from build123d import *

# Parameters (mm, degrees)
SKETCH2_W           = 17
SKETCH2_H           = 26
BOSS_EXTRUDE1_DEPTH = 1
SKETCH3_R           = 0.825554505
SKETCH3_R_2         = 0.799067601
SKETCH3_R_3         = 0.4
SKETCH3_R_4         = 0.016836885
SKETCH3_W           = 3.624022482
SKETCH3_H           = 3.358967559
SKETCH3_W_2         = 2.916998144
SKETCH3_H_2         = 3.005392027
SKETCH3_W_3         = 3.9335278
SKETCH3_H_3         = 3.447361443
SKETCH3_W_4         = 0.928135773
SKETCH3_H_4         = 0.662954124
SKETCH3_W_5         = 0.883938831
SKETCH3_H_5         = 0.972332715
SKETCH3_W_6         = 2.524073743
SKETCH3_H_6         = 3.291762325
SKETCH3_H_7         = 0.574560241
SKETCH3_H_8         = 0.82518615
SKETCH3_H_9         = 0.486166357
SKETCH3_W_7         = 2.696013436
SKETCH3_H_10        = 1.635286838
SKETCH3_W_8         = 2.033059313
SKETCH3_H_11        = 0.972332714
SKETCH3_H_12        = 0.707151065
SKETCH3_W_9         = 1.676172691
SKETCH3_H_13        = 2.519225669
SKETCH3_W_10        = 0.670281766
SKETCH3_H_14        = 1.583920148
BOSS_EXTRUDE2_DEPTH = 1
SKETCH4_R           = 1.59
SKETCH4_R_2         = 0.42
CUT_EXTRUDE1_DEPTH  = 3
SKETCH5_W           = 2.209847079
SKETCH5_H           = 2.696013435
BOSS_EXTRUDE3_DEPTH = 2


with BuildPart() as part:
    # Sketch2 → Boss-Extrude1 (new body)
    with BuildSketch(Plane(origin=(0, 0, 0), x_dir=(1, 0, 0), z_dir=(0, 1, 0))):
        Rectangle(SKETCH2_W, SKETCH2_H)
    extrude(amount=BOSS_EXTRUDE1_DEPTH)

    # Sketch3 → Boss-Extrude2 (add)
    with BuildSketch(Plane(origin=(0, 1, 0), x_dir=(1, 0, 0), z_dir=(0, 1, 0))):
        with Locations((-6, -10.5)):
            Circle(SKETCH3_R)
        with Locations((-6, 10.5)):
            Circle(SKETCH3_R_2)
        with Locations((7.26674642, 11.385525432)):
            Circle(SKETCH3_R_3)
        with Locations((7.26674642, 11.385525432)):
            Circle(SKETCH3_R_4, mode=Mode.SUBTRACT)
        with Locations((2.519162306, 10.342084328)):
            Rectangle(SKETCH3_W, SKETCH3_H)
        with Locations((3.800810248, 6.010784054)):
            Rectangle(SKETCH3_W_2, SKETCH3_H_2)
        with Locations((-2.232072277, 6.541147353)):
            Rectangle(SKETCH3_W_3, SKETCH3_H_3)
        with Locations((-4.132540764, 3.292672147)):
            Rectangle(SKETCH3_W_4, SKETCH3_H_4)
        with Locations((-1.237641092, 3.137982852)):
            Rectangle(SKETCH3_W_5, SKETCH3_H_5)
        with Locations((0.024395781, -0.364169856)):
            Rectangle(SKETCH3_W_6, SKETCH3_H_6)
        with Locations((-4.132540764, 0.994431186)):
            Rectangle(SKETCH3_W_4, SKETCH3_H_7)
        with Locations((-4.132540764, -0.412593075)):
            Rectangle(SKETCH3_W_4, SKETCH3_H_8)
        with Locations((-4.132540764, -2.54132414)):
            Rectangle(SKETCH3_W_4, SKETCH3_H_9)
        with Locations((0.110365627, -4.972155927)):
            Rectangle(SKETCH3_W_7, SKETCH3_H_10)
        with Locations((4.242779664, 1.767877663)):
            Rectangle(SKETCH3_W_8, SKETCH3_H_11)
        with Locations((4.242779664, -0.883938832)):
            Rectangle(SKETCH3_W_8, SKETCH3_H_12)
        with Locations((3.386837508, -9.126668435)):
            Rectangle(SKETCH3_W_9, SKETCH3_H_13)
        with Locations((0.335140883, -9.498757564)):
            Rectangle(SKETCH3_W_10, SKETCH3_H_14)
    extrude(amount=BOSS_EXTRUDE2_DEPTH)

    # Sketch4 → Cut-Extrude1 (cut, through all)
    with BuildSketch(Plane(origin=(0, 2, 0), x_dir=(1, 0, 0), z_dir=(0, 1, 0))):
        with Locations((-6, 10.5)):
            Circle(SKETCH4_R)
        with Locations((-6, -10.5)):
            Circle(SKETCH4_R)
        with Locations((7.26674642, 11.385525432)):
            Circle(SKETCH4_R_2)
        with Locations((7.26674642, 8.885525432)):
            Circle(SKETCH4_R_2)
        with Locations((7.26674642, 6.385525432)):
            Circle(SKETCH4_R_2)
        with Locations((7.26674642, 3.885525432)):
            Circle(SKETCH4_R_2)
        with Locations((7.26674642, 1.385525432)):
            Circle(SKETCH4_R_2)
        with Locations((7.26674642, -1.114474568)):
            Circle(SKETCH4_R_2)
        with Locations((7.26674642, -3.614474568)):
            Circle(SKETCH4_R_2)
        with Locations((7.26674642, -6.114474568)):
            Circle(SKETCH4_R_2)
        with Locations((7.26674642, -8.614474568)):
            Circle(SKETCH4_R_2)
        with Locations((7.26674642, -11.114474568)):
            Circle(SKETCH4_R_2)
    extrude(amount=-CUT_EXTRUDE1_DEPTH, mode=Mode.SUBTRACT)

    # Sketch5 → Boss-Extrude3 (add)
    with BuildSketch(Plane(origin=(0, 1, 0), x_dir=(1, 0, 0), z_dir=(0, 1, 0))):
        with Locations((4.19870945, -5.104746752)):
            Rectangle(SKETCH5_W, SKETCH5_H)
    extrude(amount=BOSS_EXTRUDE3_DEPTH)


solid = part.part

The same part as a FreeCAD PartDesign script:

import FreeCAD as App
import Part
import Sketcher
Q = App.Units.Quantity

doc = App.newDocument("Part")
body = doc.addObject("PartDesign::Body", "Body")

sketch1 = body.newObject("Sketcher::SketchObject", "Sketch")
sketch1.AttachmentSupport = (doc.getObject("XZ_Plane"), [""])
sketch1.MapMode = "FlatFace"
sketch1.addGeometry([
    Part.LineSegment(App.Vector(-8.5, -13, 0), App.Vector(-8.5, 13, 0)),
    Part.LineSegment(App.Vector(-8.5, 13, 0), App.Vector(8.5, 13, 0)),
    Part.LineSegment(App.Vector(8.5, 13, 0), App.Vector(8.5, -13, 0)),
    Part.LineSegment(App.Vector(8.5, -13, 0), App.Vector(-8.5, -13, 0)),
], False)
sketch1.addConstraint([
    Sketcher.Constraint("Coincident", 0, 2, 1, 1),
    Sketcher.Constraint("Coincident", 1, 2, 2, 1),
    Sketcher.Constraint("Coincident", 2, 2, 3, 1),
    Sketcher.Constraint("Coincident", 3, 2, 0, 1),
    Sketcher.Constraint("Vertical", 0),
    Sketcher.Constraint("Horizontal", 1),
    Sketcher.Constraint("Vertical", 2),
    Sketcher.Constraint("Horizontal", 3),
    Sketcher.Constraint("Symmetric", 0, 2, 2, 2, -1, 1),
    Sketcher.Constraint("DistanceX", 1, 1, 1, 2, Q("17 mm")),
    Sketcher.Constraint("DistanceY", 0, 1, 0, 2, Q("26 mm")),
])
pad1 = body.newObject("PartDesign::Pad", "Pad")
pad1.Profile = sketch1
pad1.Length = 1
pad1.Reversed = True

sketch2 = body.newObject("Sketcher::SketchObject", "Sketch001")
sketch2.AttachmentSupport = (doc.getObject("XZ_Plane"), [""])
sketch2.MapMode = "FlatFace"
sketch2.AttachmentOffset = App.Placement(App.Vector(0, 0, -1), App.Rotation())
sketch2.addGeometry([
    Part.Circle(App.Vector(-6, 10.5, 0), App.Vector(0, 0, 1), 0.825555),
    Part.Circle(App.Vector(-6, -10.5, 0), App.Vector(0, 0, 1), 0.799068),
    Part.Circle(App.Vector(7.266746, -11.385525, 0), App.Vector(0, 0, 1), 0.4),
    Part.Circle(App.Vector(7.266746, -11.385525, 0), App.Vector(0, 0, 1), 0.016837),
    Part.LineSegment(App.Vector(0.707151, -12.021568, 0), App.Vector(0.707151, -8.662601, 0)),
    Part.LineSegment(App.Vector(0.707151, -8.662601, 0), App.Vector(4.331174, -8.662601, 0)),
    Part.LineSegment(App.Vector(4.331174, -8.662601, 0), App.Vector(4.331174, -12.021568, 0)),
    Part.LineSegment(App.Vector(4.331174, -12.021568, 0), App.Vector(0.707151, -12.021568, 0)),
    Part.LineSegment(App.Vector(2.342311, -7.51348, 0), App.Vector(2.342311, -4.508088, 0)),
    Part.LineSegment(App.Vector(2.342311, -4.508088, 0), App.Vector(5.259309, -4.508088, 0)),
    Part.LineSegment(App.Vector(5.259309, -4.508088, 0), App.Vector(5.259309, -7.51348, 0)),
    Part.LineSegment(App.Vector(5.259309, -7.51348, 0), App.Vector(2.342311, -7.51348, 0)),
    Part.LineSegment(App.Vector(-4.198836, -8.264828, 0), App.Vector(-4.198836, -4.817467, 0)),
    Part.LineSegment(App.Vector(-4.198836, -4.817467, 0), App.Vector(-0.265308, -4.817467, 0)),
    Part.LineSegment(App.Vector(-0.265308, -4.817467, 0), App.Vector(-0.265308, -8.264828, 0)),
    Part.LineSegment(App.Vector(-0.265308, -8.264828, 0), App.Vector(-4.198836, -8.264828, 0)),
    Part.LineSegment(App.Vector(-4.596609, -3.624149, 0), App.Vector(-4.596609, -2.961195, 0)),
    Part.LineSegment(App.Vector(-4.596609, -2.961195, 0), App.Vector(-3.668473, -2.961195, 0)),
    Part.LineSegment(App.Vector(-3.668473, -2.961195, 0), App.Vector(-3.668473, -3.624149, 0)),
    Part.LineSegment(App.Vector(-3.668473, -3.624149, 0), App.Vector(-4.596609, -3.624149, 0)),
    Part.LineSegment(App.Vector(-1.679611, -3.624149, 0), App.Vector(-1.679611, -2.651816, 0)),
    Part.LineSegment(App.Vector(-1.679611, -2.651816, 0), App.Vector(-0.795672, -2.651816, 0)),
    Part.LineSegment(App.Vector(-0.795672, -2.651816, 0), App.Vector(-0.795672, -3.624149, 0)),
    Part.LineSegment(App.Vector(-0.795672, -3.624149, 0), App.Vector(-1.679611, -3.624149, 0)),
    Part.LineSegment(App.Vector(-1.237641, -1.281711, 0), App.Vector(-1.237641, 2.010051, 0)),
    Part.LineSegment(App.Vector(-1.237641, 2.010051, 0), App.Vector(1.286433, 2.010051, 0)),
    Part.LineSegment(App.Vector(1.286433, 2.010051, 0), App.Vector(1.286433, -1.281711, 0)),
    Part.LineSegment(App.Vector(1.286433, -1.281711, 0), App.Vector(-1.237641, -1.281711, 0)),
    Part.LineSegment(App.Vector(-4.596609, -1.281711, 0), App.Vector(-4.596609, -0.707151, 0)),
    Part.LineSegment(App.Vector(-4.596609, -0.707151, 0), App.Vector(-3.668473, -0.707151, 0)),
    Part.LineSegment(App.Vector(-3.668473, -0.707151, 0), App.Vector(-3.668473, -1.281711, 0)),
    Part.LineSegment(App.Vector(-3.668473, -1.281711, 0), App.Vector(-4.596609, -1.281711, 0)),
    Part.LineSegment(App.Vector(-4.596609, 0, 0), App.Vector(-4.596609, 0.825186, 0)),
    Part.LineSegment(App.Vector(-4.596609, 0.825186, 0), App.Vector(-3.668473, 0.825186, 0)),
    Part.LineSegment(App.Vector(-3.668473, 0.825186, 0), App.Vector(-3.668473, 0, 0)),
    Part.LineSegment(App.Vector(-3.668473, 0, 0), App.Vector(-4.596609, 0, 0)),
    Part.LineSegment(App.Vector(-4.596609, 2.298241, 0), App.Vector(-4.596609, 2.784407, 0)),
    Part.LineSegment(App.Vector(-4.596609, 2.784407, 0), App.Vector(-3.668473, 2.784407, 0)),
    Part.LineSegment(App.Vector(-3.668473, 2.784407, 0), App.Vector(-3.668473, 2.298241, 0)),
    Part.LineSegment(App.Vector(-3.668473, 2.298241, 0), App.Vector(-4.596609, 2.298241, 0)),
    Part.LineSegment(App.Vector(-1.237641, 4.154513, 0), App.Vector(-1.237641, 5.789799, 0)),
    Part.LineSegment(App.Vector(-1.237641, 5.789799, 0), App.Vector(1.458372, 5.789799, 0)),
    Part.LineSegment(App.Vector(1.458372, 5.789799, 0), App.Vector(1.458372, 4.154513, 0)),
    Part.LineSegment(App.Vector(1.458372, 4.154513, 0), App.Vector(-1.237641, 4.154513, 0)),
    Part.LineSegment(App.Vector(3.22625, -2.254044, 0), App.Vector(3.22625, -1.281711, 0)),
    Part.LineSegment(App.Vector(3.22625, -1.281711, 0), App.Vector(5.259309, -1.281711, 0)),
    Part.LineSegment(App.Vector(5.259309, -1.281711, 0), App.Vector(5.259309, -2.254044, 0)),
    Part.LineSegment(App.Vector(5.259309, -2.254044, 0), App.Vector(3.22625, -2.254044, 0)),
    Part.LineSegment(App.Vector(3.22625, 0.530363, 0), App.Vector(3.22625, 1.237514, 0)),
    Part.LineSegment(App.Vector(3.22625, 1.237514, 0), App.Vector(5.259309, 1.237514, 0)),
    Part.LineSegment(App.Vector(5.259309, 1.237514, 0), App.Vector(5.259309, 0.530363, 0)),
    Part.LineSegment(App.Vector(5.259309, 0.530363, 0), App.Vector(3.22625, 0.530363, 0)),
    Part.LineSegment(App.Vector(2.548751, 7.867056, 0), App.Vector(2.548751, 10.386281, 0)),
    Part.LineSegment(App.Vector(2.548751, 10.386281, 0), App.Vector(4.224924, 10.386281, 0)),
    Part.LineSegment(App.Vector(4.224924, 10.386281, 0), App.Vector(4.224924, 7.867056, 0)),
    Part.LineSegment(App.Vector(4.224924, 7.867056, 0), App.Vector(2.548751, 7.867056, 0)),
    Part.LineSegment(App.Vector(0, 8.706797, 0), App.Vector(0, 10.290718, 0)),
    Part.LineSegment(App.Vector(0, 10.290718, 0), App.Vector(0.670282, 10.290718, 0)),
    Part.LineSegment(App.Vector(0.670282, 10.290718, 0), App.Vector(0.670282, 8.706797, 0)),
    Part.LineSegment(App.Vector(0.670282, 8.706797, 0), App.Vector(0, 8.706797, 0)),
], False)
sketch2.addConstraint([
    Sketcher.Constraint("Coincident", 4, 2, 5, 1),
    Sketcher.Constraint("Coincident", 5, 2, 6, 1),
    Sketcher.Constraint("Coincident", 6, 2, 7, 1),
    Sketcher.Constraint("Coincident", 7, 2, 4, 1),
    Sketcher.Constraint("Coincident", 8, 2, 9, 1),
    Sketcher.Constraint("Coincident", 9, 2, 10, 1),
    Sketcher.Constraint("Coincident", 10, 2, 11, 1),
    Sketcher.Constraint("Coincident", 11, 2, 8, 1),
    Sketcher.Constraint("Coincident", 12, 2, 13, 1),
    Sketcher.Constraint("Coincident", 13, 2, 14, 1),
    Sketcher.Constraint("Coincident", 14, 2, 15, 1),
    Sketcher.Constraint("Coincident", 15, 2, 12, 1),
    Sketcher.Constraint("Coincident", 16, 2, 17, 1),
    Sketcher.Constraint("Coincident", 17, 2, 18, 1),
    Sketcher.Constraint("Coincident", 18, 2, 19, 1),
    Sketcher.Constraint("Coincident", 19, 2, 16, 1),
    Sketcher.Constraint("Coincident", 20, 2, 21, 1),
    Sketcher.Constraint("Coincident", 21, 2, 22, 1),
    Sketcher.Constraint("Coincident", 22, 2, 23, 1),
    Sketcher.Constraint("Coincident", 23, 2, 20, 1),
    Sketcher.Constraint("Coincident", 24, 2, 25, 1),
    Sketcher.Constraint("Coincident", 25, 2, 26, 1),
    Sketcher.Constraint("Coincident", 26, 2, 27, 1),
    Sketcher.Constraint("Coincident", 27, 2, 24, 1),
    Sketcher.Constraint("Coincident", 28, 2, 29, 1),
    Sketcher.Constraint("Coincident", 29, 2, 30, 1),
    Sketcher.Constraint("Coincident", 30, 2, 31, 1),
    Sketcher.Constraint("Coincident", 31, 2, 28, 1),
    Sketcher.Constraint("Coincident", 32, 2, 33, 1),
    Sketcher.Constraint("Coincident", 33, 2, 34, 1),
    Sketcher.Constraint("Coincident", 34, 2, 35, 1),
    Sketcher.Constraint("Coincident", 35, 2, 32, 1),
    Sketcher.Constraint("Coincident", 36, 2, 37, 1),
    Sketcher.Constraint("Coincident", 37, 2, 38, 1),
    Sketcher.Constraint("Coincident", 38, 2, 39, 1),
    Sketcher.Constraint("Coincident", 39, 2, 36, 1),
    Sketcher.Constraint("Coincident", 40, 2, 41, 1),
    Sketcher.Constraint("Coincident", 41, 2, 42, 1),
    Sketcher.Constraint("Coincident", 42, 2, 43, 1),
    Sketcher.Constraint("Coincident", 43, 2, 40, 1),
    Sketcher.Constraint("Coincident", 44, 2, 45, 1),
    Sketcher.Constraint("Coincident", 45, 2, 46, 1),
    Sketcher.Constraint("Coincident", 46, 2, 47, 1),
    Sketcher.Constraint("Coincident", 47, 2, 44, 1),
    Sketcher.Constraint("Coincident", 48, 2, 49, 1),
    Sketcher.Constraint("Coincident", 49, 2, 50, 1),
    Sketcher.Constraint("Coincident", 50, 2, 51, 1),
    Sketcher.Constraint("Coincident", 51, 2, 48, 1),
    Sketcher.Constraint("Coincident", 52, 2, 53, 1),
    Sketcher.Constraint("Coincident", 53, 2, 54, 1),
    Sketcher.Constraint("Coincident", 54, 2, 55, 1),
    Sketcher.Constraint("Coincident", 55, 2, 52, 1),
    Sketcher.Constraint("Coincident", 56, 2, 57, 1),
    Sketcher.Constraint("Coincident", 57, 2, 58, 1),
    Sketcher.Constraint("Coincident", 58, 2, 59, 1),
    Sketcher.Constraint("Coincident", 59, 2, 56, 1),
    Sketcher.Constraint("Vertical", 4),
    Sketcher.Constraint("Horizontal", 5),
    Sketcher.Constraint("Vertical", 6),
    Sketcher.Constraint("Horizontal", 7),
    Sketcher.Constraint("Vertical", 8),
    Sketcher.Constraint("Horizontal", 9),
    Sketcher.Constraint("Vertical", 10),
    Sketcher.Constraint("Horizontal", 11),
    Sketcher.Constraint("Vertical", 12),
    Sketcher.Constraint("Horizontal", 13),
    Sketcher.Constraint("Vertical", 14),
    Sketcher.Constraint("Horizontal", 15),
    Sketcher.Constraint("Vertical", 16),
    Sketcher.Constraint("Horizontal", 17),
    Sketcher.Constraint("Vertical", 18),
    Sketcher.Constraint("Horizontal", 19),
    Sketcher.Constraint("Vertical", 20),
    Sketcher.Constraint("Horizontal", 21),
    Sketcher.Constraint("Vertical", 22),
    Sketcher.Constraint("Horizontal", 23),
    Sketcher.Constraint("Vertical", 24),
    Sketcher.Constraint("Horizontal", 25),
    Sketcher.Constraint("Vertical", 26),
    Sketcher.Constraint("Horizontal", 27),
    Sketcher.Constraint("Vertical", 28),
    Sketcher.Constraint("Horizontal", 29),
    Sketcher.Constraint("Vertical", 30),
    Sketcher.Constraint("Horizontal", 31),
    Sketcher.Constraint("Vertical", 32),
    Sketcher.Constraint("Horizontal", 33),
    Sketcher.Constraint("Vertical", 34),
    Sketcher.Constraint("Horizontal", 35),
    Sketcher.Constraint("Vertical", 36),
    Sketcher.Constraint("Horizontal", 37),
    Sketcher.Constraint("Vertical", 38),
    Sketcher.Constraint("Horizontal", 39),
    Sketcher.Constraint("Vertical", 40),
    Sketcher.Constraint("Horizontal", 41),
    Sketcher.Constraint("Vertical", 42),
    Sketcher.Constraint("Horizontal", 43),
    Sketcher.Constraint("Vertical", 44),
    Sketcher.Constraint("Horizontal", 45),
    Sketcher.Constraint("Vertical", 46),
    Sketcher.Constraint("Horizontal", 47),
    Sketcher.Constraint("Vertical", 48),
    Sketcher.Constraint("Horizontal", 49),
    Sketcher.Constraint("Vertical", 50),
    Sketcher.Constraint("Horizontal", 51),
    Sketcher.Constraint("Vertical", 52),
    Sketcher.Constraint("Horizontal", 53),
    Sketcher.Constraint("Vertical", 54),
    Sketcher.Constraint("Horizontal", 55),
    Sketcher.Constraint("Vertical", 56),
    Sketcher.Constraint("Horizontal", 57),
    Sketcher.Constraint("Vertical", 58),
    Sketcher.Constraint("Horizontal", 59),
    Sketcher.Constraint("Coincident", 3, 3, 2, 3),
    Sketcher.Constraint("Symmetric", 0, 3, 1, 3, -1),
    Sketcher.Constraint("PointOnObject", 34, 2, -1),
    Sketcher.Constraint("PointOnObject", 56, 2, -2),
    Sketcher.Constraint("Horizontal", 19, 2, 22, 2),
    Sketcher.Constraint("Horizontal", 27, 2, 30, 2),
    Sketcher.Constraint("Horizontal", 31, 2, 44, 2),
    Sketcher.Constraint("Vertical", 19, 2, 28, 2),
    Sketcher.Constraint("Vertical", 18, 2, 29, 2),
    Sketcher.Constraint("Vertical", 31, 2, 32, 2),
    Sketcher.Constraint("Vertical", 30, 2, 33, 2),
    Sketcher.Constraint("Vertical", 35, 2, 36, 2),
    Sketcher.Constraint("Vertical", 34, 2, 37, 2),
    Sketcher.Constraint("Vertical", 27, 2, 40, 2),
    Sketcher.Constraint("Vertical", 10, 2, 45, 2),
    Sketcher.Constraint("Vertical", 47, 2, 48, 2),
    Sketcher.Constraint("Vertical", 46, 2, 49, 2),
    Sketcher.Constraint("Equal", 22, 44),
    Sketcher.Constraint("Diameter", 2, Q("0.8 mm")),
    Sketcher.Constraint("DistanceX", 0, 3, -1, 1, Q("6 mm")),
    Sketcher.Constraint("DistanceY", 1, 3, 0, 3, Q("21 mm")),
    Sketcher.Constraint("Diameter", 0, Q("1.651109 mm")),
    Sketcher.Constraint("DistanceX", 9, 1, 9, 2, Q("2.916998 mm")),
    Sketcher.Constraint("Diameter", 1, Q("1.598135 mm")),
    Sketcher.Constraint("Diameter", 3, Q("0.033674 mm")),
    Sketcher.Constraint("DistanceX", 16, 2, 20, 2, Q("2.916998 mm")),
    Sketcher.Constraint("DistanceY", 19, 2, 28, 2, Q("2.916998 mm")),
    Sketcher.Constraint("DistanceY", 48, 2, 42, 2, Q("2.916998 mm")),
    Sketcher.Constraint("DistanceY", 41, 2, 58, 2, Q("2.916998 mm")),
    Sketcher.Constraint("DistanceX", 21, 1, 21, 2, Q("0.883939 mm")),
    Sketcher.Constraint("DistanceX", 45, 1, 45, 2, Q("2.033059 mm")),
    Sketcher.Constraint("DistanceX", 57, 1, 57, 2, Q("0.670282 mm")),
    Sketcher.Constraint("DistanceY", 12, 1, 12, 2, Q("3.447361 mm")),
    Sketcher.Constraint("DistanceY", 28, 1, 28, 2, Q("0.57456 mm")),
    Sketcher.Constraint("DistanceY", 48, 1, 48, 2, Q("0.707151 mm")),
    Sketcher.Constraint("DistanceY", 56, 1, 56, 2, Q("1.58392 mm")),
    Sketcher.Constraint("DistanceY", 4, 2, -1, 1, Q("8.662601 mm")),
    Sketcher.Constraint("DistanceY", -1, 1, 40, 2, Q("5.789799 mm")),
    Sketcher.Constraint("DistanceY", 7, 2, 12, 2, Q("7.204101 mm")),
    Sketcher.Constraint("DistanceX", 16, 2, 13, 2, Q("4.3313 mm")),
    Sketcher.Constraint("DistanceX", 17, 2, 21, 2, Q("2.872801 mm")),
    Sketcher.Constraint("DistanceY", 22, 2, 24, 2, Q("5.6342 mm")),
    Sketcher.Constraint("DistanceX", 5, 1, 5, 2, Q("3.624022 mm")),
    Sketcher.Constraint("DistanceX", 13, 1, 13, 2, Q("3.933528 mm")),
    Sketcher.Constraint("DistanceX", 25, 1, 25, 2, Q("2.524074 mm")),
    Sketcher.Constraint("DistanceX", 41, 1, 41, 2, Q("2.696013 mm")),
    Sketcher.Constraint("DistanceX", 53, 1, 53, 2, Q("1.676173 mm")),
    Sketcher.Constraint("DistanceY", 4, 1, 4, 2, Q("3.358968 mm")),
    Sketcher.Constraint("DistanceY", 8, 1, 8, 2, Q("3.005392 mm")),
    Sketcher.Constraint("DistanceY", 16, 1, 16, 2, Q("0.662954 mm")),
    Sketcher.Constraint("DistanceY", 20, 1, 20, 2, Q("0.972333 mm")),
    Sketcher.Constraint("DistanceY", 32, 1, 32, 2, Q("0.825186 mm")),
    Sketcher.Constraint("DistanceY", 36, 1, 36, 2, Q("0.486166 mm")),
    Sketcher.Constraint("DistanceY", 40, 1, 40, 2, Q("1.635287 mm")),
    Sketcher.Constraint("DistanceY", 52, 1, 52, 2, Q("2.519226 mm")),
    Sketcher.Constraint("DistanceX", -1, 1, 4, 2, Q("0.707151 mm")),
    Sketcher.Constraint("DistanceX", -1, 1, 8, 2, Q("2.342311 mm")),
    Sketcher.Constraint("DistanceY", 8, 2, -1, 1, Q("4.508088 mm")),
    Sketcher.Constraint("DistanceX", 13, 2, -1, 1, Q("0.265308 mm")),
    Sketcher.Constraint("DistanceY", 18, 2, -1, 1, Q("3.624149 mm")),
    Sketcher.Constraint("DistanceX", 24, 2, -1, 1, Q("1.237641 mm")),
    Sketcher.Constraint("DistanceY", -1, 1, 38, 2, Q("2.298241 mm")),
    Sketcher.Constraint("DistanceX", -1, 1, 52, 2, Q("2.548751 mm")),
    Sketcher.Constraint("DistanceY", -1, 1, 52, 2, Q("10.386281 mm")),
    Sketcher.Constraint("DistanceX", -1, 1, 2, 3, Q("7.266746 mm")),
    Sketcher.Constraint("DistanceY", 2, 3, -1, 1, Q("11.385525 mm")),
])
pad2 = body.newObject("PartDesign::Pad", "Pad001")
pad2.Profile = sketch2
pad2.Length = 1
pad2.Reversed = True

sketch3 = body.newObject("Sketcher::SketchObject", "Sketch002")
sketch3.AttachmentSupport = (doc.getObject("XZ_Plane"), [""])
sketch3.MapMode = "FlatFace"
sketch3.AttachmentOffset = App.Placement(App.Vector(0, 0, -2), App.Rotation())
sketch3.addGeometry([
    Part.Circle(App.Vector(-6, -10.5, 0), App.Vector(0, 0, 1), 1.59),
    Part.Circle(App.Vector(-6, 10.5, 0), App.Vector(0, 0, 1), 1.59),
    Part.Circle(App.Vector(7.266746, -11.385525, 0), App.Vector(0, 0, 1), 0.42),
    Part.Circle(App.Vector(7.266746, -8.885525, 0), App.Vector(0, 0, 1), 0.42),
    Part.Circle(App.Vector(7.266746, -6.385525, 0), App.Vector(0, 0, 1), 0.42),
    Part.Circle(App.Vector(7.266746, -3.885525, 0), App.Vector(0, 0, 1), 0.42),
    Part.Circle(App.Vector(7.266746, -1.385525, 0), App.Vector(0, 0, 1), 0.42),
    Part.Circle(App.Vector(7.266746, 1.114475, 0), App.Vector(0, 0, 1), 0.42),
    Part.Circle(App.Vector(7.266746, 3.614475, 0), App.Vector(0, 0, 1), 0.42),
    Part.Circle(App.Vector(7.266746, 6.114475, 0), App.Vector(0, 0, 1), 0.42),
    Part.Circle(App.Vector(7.266746, 8.614475, 0), App.Vector(0, 0, 1), 0.42),
    Part.Circle(App.Vector(7.266746, 11.114475, 0), App.Vector(0, 0, 1), 0.42),
], False)
sketch3.addConstraint([
    Sketcher.Constraint("Equal", 0, 1),
    Sketcher.Constraint("Equal", 2, 3),
    Sketcher.Constraint("Equal", 3, 4),
    Sketcher.Constraint("Equal", 4, 5),
    Sketcher.Constraint("Equal", 5, 6),
    Sketcher.Constraint("Equal", 6, 7),
    Sketcher.Constraint("Equal", 7, 8),
    Sketcher.Constraint("Equal", 8, 9),
    Sketcher.Constraint("Equal", 9, 10),
    Sketcher.Constraint("Equal", 10, 11),
    Sketcher.Constraint("Symmetric", 0, 3, 1, 3, -1),
    Sketcher.Constraint("Vertical", 2, 3, 3, 3),
    Sketcher.Constraint("Vertical", 3, 3, 4, 3),
    Sketcher.Constraint("Vertical", 4, 3, 5, 3),
    Sketcher.Constraint("Vertical", 5, 3, 6, 3),
    Sketcher.Constraint("Vertical", 6, 3, 7, 3),
    Sketcher.Constraint("Vertical", 7, 3, 8, 3),
    Sketcher.Constraint("Vertical", 8, 3, 9, 3),
    Sketcher.Constraint("Vertical", 9, 3, 10, 3),
    Sketcher.Constraint("Vertical", 10, 3, 11, 3),
    Sketcher.Constraint("Diameter", 0, Q("3.18 mm")),
    Sketcher.Constraint("Diameter", 2, Q("0.84 mm")),
    Sketcher.Constraint("DistanceX", 0, 3, -1, 1, Q("6 mm")),
    Sketcher.Constraint("DistanceY", 0, 3, 1, 3, Q("21 mm")),
    Sketcher.Constraint("DistanceY", 2, 3, 4, 3, Q("5 mm")),
    Sketcher.Constraint("DistanceY", 3, 3, 5, 3, Q("5 mm")),
    Sketcher.Constraint("DistanceY", 4, 3, 6, 3, Q("5 mm")),
    Sketcher.Constraint("DistanceY", 5, 3, 7, 3, Q("5 mm")),
    Sketcher.Constraint("DistanceY", 6, 3, 8, 3, Q("5 mm")),
    Sketcher.Constraint("DistanceY", 7, 3, 9, 3, Q("5 mm")),
    Sketcher.Constraint("DistanceY", 8, 3, 10, 3, Q("5 mm")),
    Sketcher.Constraint("DistanceY", 9, 3, 11, 3, Q("5 mm")),
    Sketcher.Constraint("DistanceY", 2, 3, 3, 3, Q("2.5 mm")),
    Sketcher.Constraint("DistanceX", -1, 1, 2, 3, Q("7.266746 mm")),
    Sketcher.Constraint("DistanceY", 2, 3, -1, 1, Q("11.385525 mm")),
])
pocket1 = body.newObject("PartDesign::Pocket", "Pocket")
pocket1.Profile = sketch3
pocket1.Type = "ThroughAll"
pocket1.Reversed = True

sketch4 = body.newObject("Sketcher::SketchObject", "Sketch003")
sketch4.AttachmentSupport = (doc.getObject("XZ_Plane"), [""])
sketch4.MapMode = "FlatFace"
sketch4.AttachmentOffset = App.Placement(App.Vector(0, 0, -1), App.Rotation())
sketch4.addGeometry([
    Part.LineSegment(App.Vector(3.093786, 3.75674, 0), App.Vector(3.093786, 6.452753, 0)),
    Part.LineSegment(App.Vector(3.093786, 6.452753, 0), App.Vector(5.303633, 6.452753, 0)),
    Part.LineSegment(App.Vector(5.303633, 6.452753, 0), App.Vector(5.303633, 3.75674, 0)),
    Part.LineSegment(App.Vector(5.303633, 3.75674, 0), App.Vector(3.093786, 3.75674, 0)),
], False)
sketch4.addConstraint([
    Sketcher.Constraint("Coincident", 0, 2, 1, 1),
    Sketcher.Constraint("Coincident", 1, 2, 2, 1),
    Sketcher.Constraint("Coincident", 2, 2, 3, 1),
    Sketcher.Constraint("Coincident", 3, 2, 0, 1),
    Sketcher.Constraint("Vertical", 0),
    Sketcher.Constraint("Horizontal", 1),
    Sketcher.Constraint("Vertical", 2),
    Sketcher.Constraint("Horizontal", 3),
    Sketcher.Constraint("DistanceX", 1, 1, 1, 2, Q("2.209847 mm")),
    Sketcher.Constraint("DistanceY", 0, 1, 0, 2, Q("2.696013 mm")),
    Sketcher.Constraint("DistanceY", -1, 1, 2, 2, Q("3.75674 mm")),
    Sketcher.Constraint("DistanceX", -1, 1, 0, 2, Q("3.093786 mm")),
])
pad3 = body.newObject("PartDesign::Pad", "Pad002")
pad3.Profile = sketch4
pad3.Length = 2
pad3.Reversed = True

doc.recompute()
